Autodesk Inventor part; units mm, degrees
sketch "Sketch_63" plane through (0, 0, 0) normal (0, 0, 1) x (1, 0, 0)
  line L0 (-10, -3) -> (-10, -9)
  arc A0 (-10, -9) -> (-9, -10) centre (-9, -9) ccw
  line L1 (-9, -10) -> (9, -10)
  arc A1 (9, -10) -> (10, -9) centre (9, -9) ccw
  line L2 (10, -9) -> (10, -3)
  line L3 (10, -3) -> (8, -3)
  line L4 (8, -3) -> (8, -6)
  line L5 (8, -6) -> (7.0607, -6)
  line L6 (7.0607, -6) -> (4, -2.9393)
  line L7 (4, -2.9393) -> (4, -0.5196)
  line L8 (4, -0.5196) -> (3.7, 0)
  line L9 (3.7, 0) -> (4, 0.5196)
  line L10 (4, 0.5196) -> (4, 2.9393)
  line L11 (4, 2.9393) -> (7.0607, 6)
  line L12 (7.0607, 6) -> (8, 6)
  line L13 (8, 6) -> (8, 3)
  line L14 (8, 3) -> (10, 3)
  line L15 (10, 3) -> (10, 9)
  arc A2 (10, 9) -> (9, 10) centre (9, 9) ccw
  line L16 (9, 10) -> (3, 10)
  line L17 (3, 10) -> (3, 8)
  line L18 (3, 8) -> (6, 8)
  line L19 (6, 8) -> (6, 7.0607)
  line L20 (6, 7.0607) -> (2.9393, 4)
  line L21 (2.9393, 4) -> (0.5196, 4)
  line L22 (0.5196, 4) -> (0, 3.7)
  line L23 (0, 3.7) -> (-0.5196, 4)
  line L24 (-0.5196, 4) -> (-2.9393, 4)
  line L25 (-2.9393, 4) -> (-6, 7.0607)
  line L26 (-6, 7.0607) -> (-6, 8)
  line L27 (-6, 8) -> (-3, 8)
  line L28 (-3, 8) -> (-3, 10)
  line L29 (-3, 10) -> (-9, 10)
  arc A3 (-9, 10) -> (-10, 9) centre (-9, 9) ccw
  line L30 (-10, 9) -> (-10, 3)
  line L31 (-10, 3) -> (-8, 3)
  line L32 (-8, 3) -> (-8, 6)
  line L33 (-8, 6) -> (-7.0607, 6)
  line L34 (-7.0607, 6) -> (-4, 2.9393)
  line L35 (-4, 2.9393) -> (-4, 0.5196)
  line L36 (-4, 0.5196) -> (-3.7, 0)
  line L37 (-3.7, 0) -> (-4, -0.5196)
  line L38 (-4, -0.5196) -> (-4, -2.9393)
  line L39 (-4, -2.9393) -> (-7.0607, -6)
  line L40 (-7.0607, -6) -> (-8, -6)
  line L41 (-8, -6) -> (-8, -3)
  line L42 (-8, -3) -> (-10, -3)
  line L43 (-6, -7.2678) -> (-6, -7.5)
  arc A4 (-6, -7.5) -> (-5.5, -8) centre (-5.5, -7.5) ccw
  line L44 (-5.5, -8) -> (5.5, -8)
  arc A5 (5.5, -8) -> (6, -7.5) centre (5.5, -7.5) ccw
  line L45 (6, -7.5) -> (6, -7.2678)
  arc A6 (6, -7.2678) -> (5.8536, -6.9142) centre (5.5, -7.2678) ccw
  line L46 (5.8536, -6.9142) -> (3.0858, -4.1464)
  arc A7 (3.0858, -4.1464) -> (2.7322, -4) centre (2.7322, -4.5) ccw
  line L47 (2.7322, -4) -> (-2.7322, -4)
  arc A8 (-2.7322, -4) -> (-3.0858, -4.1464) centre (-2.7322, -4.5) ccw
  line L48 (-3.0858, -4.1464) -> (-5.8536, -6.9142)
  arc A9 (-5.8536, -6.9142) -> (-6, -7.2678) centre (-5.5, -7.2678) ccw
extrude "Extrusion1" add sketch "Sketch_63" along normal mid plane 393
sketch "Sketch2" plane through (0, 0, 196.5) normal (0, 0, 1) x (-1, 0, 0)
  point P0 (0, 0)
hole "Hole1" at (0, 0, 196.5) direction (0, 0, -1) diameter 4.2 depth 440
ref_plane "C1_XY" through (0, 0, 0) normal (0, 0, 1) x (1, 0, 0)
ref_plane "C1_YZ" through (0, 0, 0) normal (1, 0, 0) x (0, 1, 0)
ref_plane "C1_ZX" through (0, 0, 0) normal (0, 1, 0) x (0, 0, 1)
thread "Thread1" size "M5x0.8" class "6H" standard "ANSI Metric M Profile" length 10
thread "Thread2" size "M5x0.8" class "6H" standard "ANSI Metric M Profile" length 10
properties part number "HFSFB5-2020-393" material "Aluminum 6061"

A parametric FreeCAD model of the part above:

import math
import FreeCAD as App
import Part
import Sketcher

V = App.Vector
Q = App.Units.Quantity

doc = App.newDocument("Part")
params = doc.addObject("Spreadsheet::Sheet", "Params")
for row, (alias, value) in enumerate([
    ("sketch1_radius", "1 mm"),
    ("sketch1_radius2", "0.5 mm"),
    ("sketch1_width", "2 mm"),
    ("sketch1_width2", "18 mm"),
    ("sketch1_width3", "6 mm"),
    ("pad1_length", "393 mm"),
    ("sketch2_diameter", "4.2 mm"),
    ("hole_diameter", "4.2 mm"),
    ("hole_depth", "440 mm"),
], start=1):
    params.set(f"A{row}", alias)
    params.set(f"B{row}", "=" + value)
    params.setAlias(f"B{row}", alias)

body = doc.addObject("PartDesign::Body", "Body")

sketch1 = body.newObject("Sketcher::SketchObject", "Sketch")
sketch1.AttachmentSupport = (doc.getObject("XY_Plane"), [""])
sketch1.MapMode = "FlatFace"
sketch1.addGeometry(Part.LineSegment(V(-8, -3, 0), V(-10, -3, 0)), False)
sketch1.addGeometry(Part.LineSegment(V(-10, -3, 0), V(-10, -9, 0)), False)
sketch1.addGeometry(Part.ArcOfCircle(Part.Circle(V(-9, -9, 0), V(0, 0, 1), 1), math.radians(180), math.radians(270)), False)
sketch1.addGeometry(Part.LineSegment(V(-9, -10, 0), V(9, -10, 0)), False)
sketch1.addGeometry(Part.ArcOfCircle(Part.Circle(V(9, -9, 0), V(0, 0, 1), 1), math.radians(-90), math.radians(0)), False)
sketch1.addGeometry(Part.LineSegment(V(10, -9, 0), V(10, -3, 0)), False)
sketch1.addGeometry(Part.LineSegment(V(10, -3, 0), V(8, -3, 0)), False)
sketch1.addGeometry(Part.LineSegment(V(8, -3, 0), V(8, -6, 0)), False)
sketch1.addGeometry(Part.LineSegment(V(8, -6, 0), V(7.06, -6, 0)), False)
sketch1.addGeometry(Part.LineSegment(V(7.06, -6, 0), V(4, -2.94, 0)), False)
sketch1.addGeometry(Part.LineSegment(V(4, -2.94, 0), V(4, -0.52, 0)), False)
sketch1.addGeometry(Part.LineSegment(V(4, -0.52, 0), V(3.7, 0, 0)), False)
sketch1.addGeometry(Part.LineSegment(V(3.7, 0, 0), V(4, 0.52, 0)), False)
sketch1.addGeometry(Part.LineSegment(V(4, 0.52, 0), V(4, 2.94, 0)), False)
sketch1.addGeometry(Part.LineSegment(V(4, 2.94, 0), V(7.06, 6, 0)), False)
sketch1.addGeometry(Part.LineSegment(V(7.06, 6, 0), V(8, 6, 0)), False)
sketch1.addGeometry(Part.LineSegment(V(8, 6, 0), V(8, 3, 0)), False)
sketch1.addGeometry(Part.LineSegment(V(8, 3, 0), V(10, 3, 0)), False)
sketch1.addGeometry(Part.LineSegment(V(10, 3, 0), V(10, 9, 0)), False)
sketch1.addGeometry(Part.ArcOfCircle(Part.Circle(V(9, 9, 0), V(0, 0, 1), 1), math.radians(0), math.radians(90)), False)
sketch1.addGeometry(Part.LineSegment(V(9, 10, 0), V(3, 10, 0)), False)
sketch1.addGeometry(Part.LineSegment(V(3, 10, 0), V(3, 8, 0)), False)
sketch1.addGeometry(Part.LineSegment(V(3, 8, 0), V(6, 8, 0)), False)
sketch1.addGeometry(Part.LineSegment(V(6, 8, 0), V(6, 7.06, 0)), False)
sketch1.addGeometry(Part.LineSegment(V(6, 7.06, 0), V(2.94, 4, 0)), False)
sketch1.addGeometry(Part.LineSegment(V(2.94, 4, 0), V(0.52, 4, 0)), False)
sketch1.addGeometry(Part.LineSegment(V(0.52, 4, 0), V(0, 3.7, 0)), False)
sketch1.addGeometry(Part.LineSegment(V(0, 3.7, 0), V(-0.52, 4, 0)), False)
sketch1.addGeometry(Part.LineSegment(V(-0.52, 4, 0), V(-2.94, 4, 0)), False)
sketch1.addGeometry(Part.LineSegment(V(-2.94, 4, 0), V(-6, 7.06, 0)), False)
sketch1.addGeometry(Part.LineSegment(V(-6, 7.06, 0), V(-6, 8, 0)), False)
sketch1.addGeometry(Part.LineSegment(V(-6, 8, 0), V(-3, 8, 0)), False)
sketch1.addGeometry(Part.LineSegment(V(-3, 8, 0), V(-3, 10, 0)), False)
sketch1.addGeometry(Part.LineSegment(V(-3, 10, 0), V(-9, 10, 0)), False)
sketch1.addGeometry(Part.ArcOfCircle(Part.Circle(V(-9, 9, 0), V(0, 0, 1), 1), math.radians(90), math.radians(180)), False)
sketch1.addGeometry(Part.LineSegment(V(-10, 9, 0), V(-10, 3, 0)), False)
sketch1.addGeometry(Part.LineSegment(V(-10, 3, 0), V(-8, 3, 0)), False)
sketch1.addGeometry(Part.LineSegment(V(-8, 3, 0), V(-8, 6, 0)), False)
sketch1.addGeometry(Part.LineSegment(V(-8, 6, 0), V(-7.06, 6, 0)), False)
sketch1.addGeometry(Part.LineSegment(V(-7.06, 6, 0), V(-4, 2.94, 0)), False)
sketch1.addGeometry(Part.LineSegment(V(-4, 2.94, 0), V(-4, 0.52, 0)), False)
sketch1.addGeometry(Part.LineSegment(V(-4, 0.52, 0), V(-3.7, 0, 0)), False)
sketch1.addGeometry(Part.LineSegment(V(-3.7, 0, 0), V(-4, -0.52, 0)), False)
sketch1.addGeometry(Part.LineSegment(V(-4, -0.52, 0), V(-4, -2.94, 0)), False)
sketch1.addGeometry(Part.LineSegment(V(-4, -2.94, 0), V(-7.06, -6, 0)), False)
sketch1.addGeometry(Part.LineSegment(V(-7.06, -6, 0), V(-8, -6, 0)), False)
sketch1.addGeometry(Part.LineSegment(V(-8, -6, 0), V(-8, -3, 0)), False)
sketch1.addGeometry(Part.LineSegment(V(-6, -7.5, 0), V(-6, -7.27, 0)), False)
sketch1.addGeometry(Part.ArcOfCircle(Part.Circle(V(-5.5, -7.27, 0), V(0, 0, 1), 0.5), math.radians(135), math.radians(180)), False)
sketch1.addGeometry(Part.LineSegment(V(-5.85, -6.91, 0), V(-3.09, -4.15, 0)), False)
sketch1.addGeometry(Part.ArcOfCircle(Part.Circle(V(-2.73, -4.5, 0), V(0, 0, 1), 0.5), math.radians(90), math.radians(135)), False)
sketch1.addGeometry(Part.LineSegment(V(-2.73, -4, 0), V(2.73, -4, 0)), False)
sketch1.addGeometry(Part.ArcOfCircle(Part.Circle(V(2.73, -4.5, 0), V(0, 0, 1), 0.5), math.radians(45), math.radians(90)), False)
sketch1.addGeometry(Part.LineSegment(V(3.09, -4.15, 0), V(5.85, -6.91, 0)), False)
sketch1.addGeometry(Part.ArcOfCircle(Part.Circle(V(5.5, -7.27, 0), V(0, 0, 1), 0.5), math.radians(0), math.radians(45)), False)
sketch1.addGeometry(Part.LineSegment(V(6, -7.27, 0), V(6, -7.5, 0)), False)
sketch1.addGeometry(Part.ArcOfCircle(Part.Circle(V(5.5, -7.5, 0), V(0, 0, 1), 0.5), math.radians(-90), math.radians(0)), False)
sketch1.addGeometry(Part.LineSegment(V(5.5, -8, 0), V(-5.5, -8, 0)), False)
sketch1.addGeometry(Part.ArcOfCircle(Part.Circle(V(-5.5, -7.5, 0), V(0, 0, 1), 0.5), math.radians(180), math.radians(270)), False)
sketch1.addConstraint(Sketcher.Constraint("Coincident", 0, 2, 1, 1))
sketch1.addConstraint(Sketcher.Constraint("Tangent", 1, 2, 2, 1))
sketch1.addConstraint(Sketcher.Constraint("Tangent", 2, 2, 3, 1))
sketch1.addConstraint(Sketcher.Constraint("Tangent", 3, 2, 4, 1))
sketch1.addConstraint(Sketcher.Constraint("Tangent", 4, 2, 5, 1))
sketch1.addConstraint(Sketcher.Constraint("Coincident", 5, 2, 6, 1))
sketch1.addConstraint(Sketcher.Constraint("Coincident", 6, 2, 7, 1))
sketch1.addConstraint(Sketcher.Constraint("Coincident", 7, 2, 8, 1))
sketch1.addConstraint(Sketcher.Constraint("Coincident", 8, 2, 9, 1))
sketch1.addConstraint(Sketcher.Constraint("Coincident", 9, 2, 10, 1))
sketch1.addConstraint(Sketcher.Constraint("Coincident", 10, 2, 11, 1))
sketch1.addConstraint(Sketcher.Constraint("Coincident", 11, 2, 12, 1))
sketch1.addConstraint(Sketcher.Constraint("Coincident", 12, 2, 13, 1))
sketch1.addConstraint(Sketcher.Constraint("Coincident", 13, 2, 14, 1))
sketch1.addConstraint(Sketcher.Constraint("Coincident", 14, 2, 15, 1))
sketch1.addConstraint(Sketcher.Constraint("Coincident", 15, 2, 16, 1))
sketch1.addConstraint(Sketcher.Constraint("Coincident", 16, 2, 17, 1))
sketch1.addConstraint(Sketcher.Constraint("Coincident", 17, 2, 18, 1))
sketch1.addConstraint(Sketcher.Constraint("Tangent", 18, 2, 19, 1))
sketch1.addConstraint(Sketcher.Constraint("Tangent", 19, 2, 20, 1))
sketch1.addConstraint(Sketcher.Constraint("Coincident", 20, 2, 21, 1))
sketch1.addConstraint(Sketcher.Constraint("Coincident", 21, 2, 22, 1))
sketch1.addConstraint(Sketcher.Constraint("Coincident", 22, 2, 23, 1))
sketch1.addConstraint(Sketcher.Constraint("Coincident", 23, 2, 24, 1))
sketch1.addConstraint(Sketcher.Constraint("Coincident", 24, 2, 25, 1))
sketch1.addConstraint(Sketcher.Constraint("Coincident", 25, 2, 26, 1))
sketch1.addConstraint(Sketcher.Constraint("Coincident", 26, 2, 27, 1))
sketch1.addConstraint(Sketcher.Constraint("Coincident", 27, 2, 28, 1))
sketch1.addConstraint(Sketcher.Constraint("Coincident", 28, 2, 29, 1))
sketch1.addConstraint(Sketcher.Constraint("Coincident", 29, 2, 30, 1))
sketch1.addConstraint(Sketcher.Constraint("Coincident", 30, 2, 31, 1))
sketch1.addConstraint(Sketcher.Constraint("Coincident", 31, 2, 32, 1))
sketch1.addConstraint(Sketcher.Constraint("Coincident", 32, 2, 33, 1))
sketch1.addConstraint(Sketcher.Constraint("Tangent", 33, 2, 34, 1))
sketch1.addConstraint(Sketcher.Constraint("Tangent", 34, 2, 35, 1))
sketch1.addConstraint(Sketcher.Constraint("Coincident", 35, 2, 36, 1))
sketch1.addConstraint(Sketcher.Constraint("Coincident", 36, 2, 37, 1))
sketch1.addConstraint(Sketcher.Constraint("Coincident", 37, 2, 38, 1))
sketch1.addConstraint(Sketcher.Constraint("Coincident", 38, 2, 39, 1))
sketch1.addConstraint(Sketcher.Constraint("Coincident", 39, 2, 40, 1))
sketch1.addConstraint(Sketcher.Constraint("Coincident", 40, 2, 41, 1))
sketch1.addConstraint(Sketcher.Constraint("Coincident", 41, 2, 42, 1))
sketch1.addConstraint(Sketcher.Constraint("Coincident", 42, 2, 43, 1))
sketch1.addConstraint(Sketcher.Constraint("Coincident", 43, 2, 44, 1))
sketch1.addConstraint(Sketcher.Constraint("Coincident", 44, 2, 45, 1))
sketch1.addConstraint(Sketcher.Constraint("Coincident", 45, 2, 46, 1))
sketch1.addConstraint(Sketcher.Constraint("Coincident", 46, 2, 0, 1))
sketch1.addConstraint(Sketcher.Constraint("Tangent", 47, 2, 48, 2))
sketch1.addConstraint(Sketcher.Constraint("Tangent", 48, 1, 49, 1))
sketch1.addConstraint(Sketcher.Constraint("Tangent", 49, 2, 50, 2))
sketch1.addConstraint(Sketcher.Constraint("Tangent", 50, 1, 51, 1))
sketch1.addConstraint(Sketcher.Constraint("Tangent", 51, 2, 52, 2))
sketch1.addConstraint(Sketcher.Constraint("Tangent", 52, 1, 53, 1))
sketch1.addConstraint(Sketcher.Constraint("Tangent", 53, 2, 54, 2))
sketch1.addConstraint(Sketcher.Constraint("Tangent", 54, 1, 55, 1))
sketch1.addConstraint(Sketcher.Constraint("Tangent", 55, 2, 56, 2))
sketch1.addConstraint(Sketcher.Constraint("Tangent", 56, 1, 57, 1))
sketch1.addConstraint(Sketcher.Constraint("Tangent", 57, 2, 58, 2))
sketch1.addConstraint(Sketcher.Constraint("Tangent", 58, 1, 47, 1))
sketch1.addConstraint(Sketcher.Constraint("Horizontal", 0))
sketch1.addConstraint(Sketcher.Constraint("Vertical", 1))
sketch1.addConstraint(Sketcher.Constraint("Horizontal", 3))
sketch1.addConstraint(Sketcher.Constraint("Vertical", 5))
sketch1.addConstraint(Sketcher.Constraint("Horizontal", 6))
sketch1.addConstraint(Sketcher.Constraint("Vertical", 7))
sketch1.addConstraint(Sketcher.Constraint("Horizontal", 8))
sketch1.addConstraint(Sketcher.Constraint("Vertical", 10))
sketch1.addConstraint(Sketcher.Constraint("Vertical", 13))
sketch1.addConstraint(Sketcher.Constraint("Horizontal", 15))
sketch1.addConstraint(Sketcher.Constraint("Vertical", 16))
sketch1.addConstraint(Sketcher.Constraint("Horizontal", 17))
sketch1.addConstraint(Sketcher.Constraint("Vertical", 18))
sketch1.addConstraint(Sketcher.Constraint("Horizontal", 20))
sketch1.addConstraint(Sketcher.Constraint("Vertical", 21))
sketch1.addConstraint(Sketcher.Constraint("Horizontal", 22))
sketch1.addConstraint(Sketcher.Constraint("Vertical", 23))
sketch1.addConstraint(Sketcher.Constraint("Horizontal", 25))
sketch1.addConstraint(Sketcher.Constraint("Horizontal", 28))
sketch1.addConstraint(Sketcher.Constraint("Vertical", 30))
sketch1.addConstraint(Sketcher.Constraint("Horizontal", 31))
sketch1.addConstraint(Sketcher.Constraint("Vertical", 32))
sketch1.addConstraint(Sketcher.Constraint("Horizontal", 33))
sketch1.addConstraint(Sketcher.Constraint("Vertical", 35))
sketch1.addConstraint(Sketcher.Constraint("Horizontal", 36))
sketch1.addConstraint(Sketcher.Constraint("Vertical", 37))
sketch1.addConstraint(Sketcher.Constraint("Horizontal", 38))
sketch1.addConstraint(Sketcher.Constraint("Vertical", 40))
sketch1.addConstraint(Sketcher.Constraint("Vertical", 43))
sketch1.addConstraint(Sketcher.Constraint("Horizontal", 45))
sketch1.addConstraint(Sketcher.Constraint("Vertical", 46))
sketch1.addConstraint(Sketcher.Constraint("Vertical", 47))
sketch1.addConstraint(Sketcher.Constraint("Horizontal", 51))
sketch1.addConstraint(Sketcher.Constraint("Vertical", 55))
sketch1.addConstraint(Sketcher.Constraint("Horizontal", 57))
sketch1.addConstraint(Sketcher.Constraint("Equal", 2, 4))
sketch1.addConstraint(Sketcher.Constraint("Equal", 4, 19))
sketch1.addConstraint(Sketcher.Constraint("Equal", 19, 34))
sketch1.addConstraint(Sketcher.Constraint("Equal", 48, 50))
sketch1.addConstraint(Sketcher.Constraint("Equal", 50, 52))
sketch1.addConstraint(Sketcher.Constraint("Equal", 52, 54))
sketch1.addConstraint(Sketcher.Constraint("Equal", 54, 56))
sketch1.addConstraint(Sketcher.Constraint("Equal", 56, 58))
sketch1.addConstraint(Sketcher.Constraint("Symmetric", 2, 3, 19, 3, -1, 1))
sketch1.addConstraint(Sketcher.Constraint("Symmetric", 4, 3, 34, 3, -1, 1))
sketch1.addConstraint(Sketcher.Constraint("Symmetric", 6, 2, 36, 2, -1, 1))
sketch1.addConstraint(Sketcher.Constraint("Symmetric", 8, 2, 38, 2, -1, 1))
sketch1.addConstraint(Sketcher.Constraint("Symmetric", 9, 2, 39, 2, -1, 1))
sketch1.addConstraint(Sketcher.Constraint("Symmetric", 11, 2, 41, 2, -1, 1))
sketch1.addConstraint(Sketcher.Constraint("Symmetric", 12, 2, 42, 2, -1, 1))
sketch1.addConstraint(Sketcher.Constraint("Symmetric", 14, 2, 44, 2, -1, 1))
sketch1.addConstraint(Sketcher.Constraint("Symmetric", 16, 2, 46, 2, -1, 1))
sketch1.addConstraint(Sketcher.Constraint("Symmetric", 48, 3, 54, 3, -2))
sketch1.addConstraint(Sketcher.Constraint("Symmetric", 0, 2, 5, 2, -2))
sketch1.addConstraint(Sketcher.Constraint("Symmetric", 25, 2, 27, 2, -2))
sketch1.addConstraint(Sketcher.Constraint("Symmetric", 23, 2, 29, 2, -2))
sketch1.addConstraint(Sketcher.Constraint("Symmetric", 21, 2, 31, 2, -2))
sketch1.addConstraint(Sketcher.Constraint("Symmetric", 15, 2, 37, 2, -2))
sketch1.addConstraint(Sketcher.Constraint("Symmetric", 13, 2, 39, 2, -2))
sketch1.addConstraint(Sketcher.Constraint("PointOnObject", 11, 2, -1))
sketch1.addConstraint(Sketcher.Constraint("PointOnObject", 26, 2, -2))
sketch1.addConstraint(Sketcher.Constraint("Perpendicular", 9, 14))
sketch1.addConstraint(Sketcher.Constraint("Parallel", 14, 24))
sketch1.addConstraint(Sketcher.Constraint("Perpendicular", 11, 26))
sketch1.addConstraint(Sketcher.Constraint("Perpendicular", 12, 27))
sketch1.addConstraint(Sketcher.Constraint("Perpendicular", 24, 29))
sketch1.addConstraint(Sketcher.Constraint("Perpendicular", 26, 41))
sketch1.addConstraint(Sketcher.Constraint("Perpendicular", 39, 44))
sketch1.addConstraint(Sketcher.Constraint("Parallel", 44, 49))
sketch1.addConstraint(Sketcher.Constraint("Perpendicular", 49, 53))
sketch1.addConstraint(Sketcher.Constraint("Horizontal", 49, 2, 52, 1))
sketch1.addConstraint(Sketcher.Constraint("Vertical", 30, 2, 47, 2))
sketch1.addConstraint(Sketcher.Constraint("Equal", 33, 1))
sketch1.addConstraint(Sketcher.Constraint("Equal", 31, 7))
sketch1.addConstraint(Sketcher.Constraint("Equal", 28, 10))
sketch1.addConstraint(Sketcher.Constraint("Equal", 36, 21))
sketch1.addConstraint(Sketcher.Constraint("Equal", 45, 23))
sketch1.addConstraint(Sketcher.Constraint("Equal", 14, 24))
sketch1.addConstraint(Sketcher.Constraint("Equal", 12, 26))
sketch1.addConstraint(Sketcher.Constraint("Radius", 2, Q("1 mm")))
sketch1.addConstraint(Sketcher.Constraint("Radius", 48, Q("0.5 mm")))
sketch1.addConstraint(Sketcher.Constraint("DistanceX", 0, 2, 0, 1, Q("2 mm")))
sketch1.addConstraint(Sketcher.Constraint("DistanceX", 3, 1, 3, 2, Q("18 mm")))
sketch1.addConstraint(Sketcher.Constraint("DistanceX", 20, 2, 20, 1, Q("6 mm")))
sketch1.addConstraint(Sketcher.Constraint("DistanceX", 22, 1, 22, 2, Q("3 mm")))
sketch1.addConstraint(Sketcher.Constraint("Angle", 11, Q("120.0007 deg")))
sketch1.addConstraint(Sketcher.Constraint("DistanceX", -1, 1, 9, 2, Q("4 mm")))
sketch1.addConstraint(Sketcher.Constraint("DistanceY", 50, 1, -1, 1, Q("4 mm")))
sketch1.addConstraint(Sketcher.Constraint("DistanceY", 56, 1, -1, 1, Q("8 mm")))
sketch1.addConstraint(Sketcher.Constraint("Distance", 11, Q("0.6 mm")))
sketch1.addConstraint(Sketcher.Constraint("DistanceX", 8, 2, 8, 1, Q("0.9393 mm")))
sketch1.addConstraint(Sketcher.Constraint("DistanceX", 51, 1, 51, 2, Q("5.4644 mm")))
sketch1.setExpression("Constraints[138]", "Params.sketch1_radius")
sketch1.setExpression("Constraints[139]", "Params.sketch1_radius2")
sketch1.setExpression("Constraints[140]", "Params.sketch1_width")
sketch1.setExpression("Constraints[141]", "Params.sketch1_width2")
sketch1.setExpression("Constraints[142]", "Params.sketch1_width3")
pad1 = body.newObject("PartDesign::Pad", "Pad")
pad1.Profile = sketch1
pad1.setExpression("Length", "Params.pad1_length")
pad1.Midplane = True

sketch2 = body.newObject("Sketcher::SketchObject", "Sketch001")
sketch2.AttachmentSupport = (doc.getObject("XY_Plane"), [""])
sketch2.MapMode = "FlatFace"
sketch2.AttachmentOffset = App.Placement(V(0, 0, 196.5), App.Rotation())
sketch2.addGeometry(Part.Circle(V(0, 0, 0), V(0, 0, 1), 2.1), False)
sketch2.addConstraint(Sketcher.Constraint("Coincident", 0, 3, -1, 1))
sketch2.addConstraint(Sketcher.Constraint("Diameter", 0, Q("4.2 mm")))
sketch2.setExpression("Constraints[1]", "Params.sketch2_diameter")
doc.recompute()
hole = body.newObject("PartDesign::Hole", "Hole")
hole.Profile = sketch2
hole.ThreadType = "None"
hole.setExpression("Diameter", "Params.hole_diameter")
hole.DepthType = "Dimension"
hole.setExpression("Depth", "Params.hole_depth")
hole.DrillPoint = "Flat"

doc.recompute()
